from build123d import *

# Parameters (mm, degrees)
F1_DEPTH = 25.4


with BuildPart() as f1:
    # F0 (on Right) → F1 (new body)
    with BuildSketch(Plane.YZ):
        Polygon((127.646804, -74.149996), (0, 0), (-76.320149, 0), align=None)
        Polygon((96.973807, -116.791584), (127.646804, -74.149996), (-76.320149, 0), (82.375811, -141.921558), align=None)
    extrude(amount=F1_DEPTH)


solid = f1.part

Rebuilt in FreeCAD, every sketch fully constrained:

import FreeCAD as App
import Part
import Sketcher
Q = App.Units.Quantity


def add_polygon(sketch, points):
    """Adds a closed chain of lines whose ends are joined by coincident constraints."""
    first, n = sketch.GeometryCount, len(points)
    for a, b in zip(points, points[1:] + points[:1]):
        sketch.addGeometry(Part.LineSegment(App.Vector(*a, 0), App.Vector(*b, 0)), False)
    for i in range(n):
        sketch.addConstraint(Sketcher.Constraint("Coincident", first + i, 2, first + (i + 1) % n, 1))

doc = App.newDocument("Part")
params = doc.addObject("Spreadsheet::Sheet", "Params")
for row, (alias, value) in enumerate([
    ("pad1_length", "1 in"),
], start=1):
    params.set(f"A{row}", alias)
    params.set(f"B{row}", "=" + value)
    params.setAlias(f"B{row}", alias)

body = doc.addObject("PartDesign::Body", "Body")

# Sketch on YZ plane
sketch1 = body.newObject("Sketcher::SketchObject", "Sketch")
sketch1.AttachmentSupport = (doc.getObject("YZ_Plane"), [""])
sketch1.MapMode = "FlatFace"
add_polygon(sketch1, [(128, -74), (0, 0), (-76, 0), (82, -142), (97, -117)])  # lines 0-4
sketch1.addConstraint(Sketcher.Constraint("Horizontal", 1))
sketch1.addConstraint(Sketcher.Constraint("Coincident", 0, 2, -1, 1))
sketch1.addConstraint(Sketcher.Constraint("Perpendicular", 0, 3))
sketch1.addConstraint(Sketcher.Constraint("DistanceX", 1, 2, 1, 1, Q("76.320149 mm")))
sketch1.addConstraint(Sketcher.Constraint("DistanceX", -1, 1, 2, 2, Q("82.375811 mm")))
sketch1.addConstraint(Sketcher.Constraint("DistanceY", 2, 2, -1, 1, Q("141.921558 mm")))
sketch1.addConstraint(Sketcher.Constraint("Distance", 0, Q("147.620894 mm")))
sketch1.addConstraint(Sketcher.Constraint("Distance", 3, Q("29.062297 mm")))
sketch1.addConstraint(Sketcher.Constraint("Distance", 4, Q("52.527495 mm")))
pad1 = body.newObject("PartDesign::Pad", "Pad")
pad1.Profile = sketch1
pad1.setExpression("Length", "Params.pad1_length")

doc.recompute()
